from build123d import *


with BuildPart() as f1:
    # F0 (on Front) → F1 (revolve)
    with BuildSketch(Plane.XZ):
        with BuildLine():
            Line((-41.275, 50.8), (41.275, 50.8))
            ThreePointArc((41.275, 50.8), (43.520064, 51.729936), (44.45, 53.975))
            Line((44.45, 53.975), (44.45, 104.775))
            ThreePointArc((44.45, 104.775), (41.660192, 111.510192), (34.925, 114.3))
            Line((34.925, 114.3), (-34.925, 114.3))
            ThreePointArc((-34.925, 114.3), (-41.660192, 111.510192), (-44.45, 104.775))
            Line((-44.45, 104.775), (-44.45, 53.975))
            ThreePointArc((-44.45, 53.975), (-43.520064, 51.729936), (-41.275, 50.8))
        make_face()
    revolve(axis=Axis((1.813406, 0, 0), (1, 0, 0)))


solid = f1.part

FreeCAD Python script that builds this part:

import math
import FreeCAD as App
import Part
import Sketcher
Q = App.Units.Quantity

doc = App.newDocument("Part")
body = doc.addObject("PartDesign::Body", "Body")

# Sketch on XZ plane
sketch1 = doc.addObject("Sketcher::SketchObject", "Sketch")
body.addObject(sketch1)
sketch1.AttachmentSupport = (doc.XZ_Plane, [""])
sketch1.MapMode = "FlatFace"
sketch1.addGeometry(Part.LineSegment(App.Vector(-41.3, 50.8, 0), App.Vector(41.3, 50.8, 0)), False)
sketch1.addGeometry(Part.ArcOfCircle(Part.Circle(App.Vector(41.3, 54, 0), App.Vector(0, 0, 1), 3.2), math.radians(-90), math.radians(0)), False)
sketch1.addGeometry(Part.LineSegment(App.Vector(44.5, 54, 0), App.Vector(44.5, 104.8, 0)), False)
sketch1.addGeometry(Part.ArcOfCircle(Part.Circle(App.Vector(34.9, 104.8, 0), App.Vector(0, 0, 1), 9.5), math.radians(0), math.radians(90)), False)
sketch1.addGeometry(Part.LineSegment(App.Vector(34.9, 114.3, 0), App.Vector(-34.9, 114.3, 0)), False)
sketch1.addGeometry(Part.ArcOfCircle(Part.Circle(App.Vector(-34.9, 104.8, 0), App.Vector(0, 0, 1), 9.5), math.radians(90), math.radians(180)), False)
sketch1.addGeometry(Part.LineSegment(App.Vector(-44.5, 104.8, 0), App.Vector(-44.5, 54, 0)), False)
sketch1.addGeometry(Part.ArcOfCircle(Part.Circle(App.Vector(-41.3, 54, 0), App.Vector(0, 0, 1), 3.2), math.radians(-180), math.radians(-90)), False)
sketch1.addConstraint(Sketcher.Constraint("Tangent", 0, 2, 1, 1))
sketch1.addConstraint(Sketcher.Constraint("Tangent", 1, 2, 2, 1))
sketch1.addConstraint(Sketcher.Constraint("Tangent", 2, 2, 3, 1))
sketch1.addConstraint(Sketcher.Constraint("Tangent", 3, 2, 4, 1))
sketch1.addConstraint(Sketcher.Constraint("Tangent", 4, 2, 5, 1))
sketch1.addConstraint(Sketcher.Constraint("Tangent", 5, 2, 6, 1))
sketch1.addConstraint(Sketcher.Constraint("Tangent", 6, 2, 7, 1))
sketch1.addConstraint(Sketcher.Constraint("Tangent", 7, 2, 0, 1))
sketch1.addConstraint(Sketcher.Constraint("Horizontal", 0))
sketch1.addConstraint(Sketcher.Constraint("Vertical", 2))
sketch1.addConstraint(Sketcher.Constraint("Horizontal", 4))
sketch1.addConstraint(Sketcher.Constraint("Vertical", 6))
sketch1.addConstraint(Sketcher.Constraint("Equal", 3, 5))
sketch1.addConstraint(Sketcher.Constraint("Equal", 1, 7))
sketch1.addConstraint(Sketcher.Constraint("DistanceY", 2, 1, 2, 2, Q("2 in")))
sketch1.addConstraint(Sketcher.Constraint("DistanceY", -1, 1, 0, 2, Q("2 in")))
sketch1.addConstraint(Sketcher.Constraint("Radius", 1, Q("0.125 in")))
sketch1.addConstraint(Sketcher.Constraint("Radius", 3, Q("0.375 in")))
sketch1.addConstraint(Sketcher.Constraint("DistanceX", 5, 3, 1, 3, Q("3 in")))
sketch1.addConstraint(Sketcher.Constraint("DistanceX", -1, 1, 1, 2, Q("1.75 in")))
revolution = doc.addObject("PartDesign::Revolution", "Revolution")
body.addObject(revolution)
revolution.Profile = sketch1
revolution.ReferenceAxis = (sketch1, ["H_Axis"])
revolution.Angle = 360

doc.recompute()
